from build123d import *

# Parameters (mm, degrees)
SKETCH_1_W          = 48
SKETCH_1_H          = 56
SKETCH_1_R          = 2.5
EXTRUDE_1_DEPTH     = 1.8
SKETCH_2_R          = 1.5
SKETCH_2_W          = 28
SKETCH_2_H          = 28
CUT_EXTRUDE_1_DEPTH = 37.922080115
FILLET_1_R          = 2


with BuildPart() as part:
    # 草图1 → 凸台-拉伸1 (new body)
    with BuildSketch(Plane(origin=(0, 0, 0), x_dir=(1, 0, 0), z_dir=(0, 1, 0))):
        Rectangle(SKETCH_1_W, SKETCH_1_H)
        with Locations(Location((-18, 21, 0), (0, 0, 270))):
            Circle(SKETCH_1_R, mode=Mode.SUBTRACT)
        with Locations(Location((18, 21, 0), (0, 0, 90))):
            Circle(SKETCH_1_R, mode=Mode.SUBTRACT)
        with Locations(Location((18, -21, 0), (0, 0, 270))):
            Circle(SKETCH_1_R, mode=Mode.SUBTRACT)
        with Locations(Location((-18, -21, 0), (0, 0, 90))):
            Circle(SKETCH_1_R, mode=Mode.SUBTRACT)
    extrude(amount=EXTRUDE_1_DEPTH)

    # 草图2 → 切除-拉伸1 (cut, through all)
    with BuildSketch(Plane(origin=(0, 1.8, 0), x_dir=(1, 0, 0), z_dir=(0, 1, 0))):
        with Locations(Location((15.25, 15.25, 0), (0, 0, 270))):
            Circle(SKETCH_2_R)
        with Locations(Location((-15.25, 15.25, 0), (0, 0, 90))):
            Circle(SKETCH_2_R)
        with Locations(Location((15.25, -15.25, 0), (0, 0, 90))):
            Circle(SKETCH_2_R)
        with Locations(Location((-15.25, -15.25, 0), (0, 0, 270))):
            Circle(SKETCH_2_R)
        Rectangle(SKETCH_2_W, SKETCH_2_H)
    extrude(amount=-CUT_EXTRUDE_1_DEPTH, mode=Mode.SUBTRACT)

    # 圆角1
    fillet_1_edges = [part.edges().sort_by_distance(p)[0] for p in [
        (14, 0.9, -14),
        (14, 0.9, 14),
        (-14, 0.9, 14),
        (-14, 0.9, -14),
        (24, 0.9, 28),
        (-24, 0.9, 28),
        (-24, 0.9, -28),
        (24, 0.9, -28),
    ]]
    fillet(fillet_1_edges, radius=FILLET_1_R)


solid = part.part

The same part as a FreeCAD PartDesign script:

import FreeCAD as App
import Part
import Sketcher
from FreeCAD import Vector
Q = App.Units.Quantity


def edges_at(feature, points):
    """Names of the edges that pass closest to the given points."""
    edges = feature.Shape.Edges
    near = lambda p: min(range(len(edges)), key=lambda i: edges[i].distToShape(Part.Vertex(*p))[0])
    return sorted({f"Edge{near(p) + 1}" for p in points})


def add_polygon(sketch, points):
    """Adds a closed chain of lines whose ends are joined by coincident constraints."""
    first, n = sketch.GeometryCount, len(points)
    for a, b in zip(points, points[1:] + points[:1]):
        sketch.addGeometry(Part.LineSegment(App.Vector(*a, 0), App.Vector(*b, 0)), False)
    for i in range(n):
        sketch.addConstraint(Sketcher.Constraint("Coincident", first + i, 2, first + (i + 1) % n, 1))

doc = App.newDocument("Part")
params = doc.addObject("Spreadsheet::Sheet", "Params")
for row, (alias, value) in enumerate([
    ("sketch1_diameter", "5 mm"),
    ("sketch1_width", "48 mm"),
    ("sketch1_height", "56 mm"),
    ("pad1_length", "1.8 mm"),
    ("sketch2_diameter", "3 mm"),
    ("sketch2_width", "28 mm"),
    ("fillet_radius", "2 mm"),
], start=1):
    params.set(f"A{row}", alias)
    params.set(f"B{row}", "=" + value)
    params.setAlias(f"B{row}", alias)

body = doc.addObject("PartDesign::Body", "Body")

# Sketch on XZ plane
sketch1 = body.newObject("Sketcher::SketchObject", "Sketch")
sketch1.AttachmentSupport = (doc.getObject("XZ_Plane"), [""])
sketch1.MapMode = "FlatFace"
add_polygon(sketch1, [(-24, -28), (-24, 28), (24, 28), (24, -28)])  # lines 0-3
sketch1.addGeometry(Part.Circle(Vector(-18, 21, 0), Vector(0, 0, 1), 2.5), False)  # 4
sketch1.addGeometry(Part.Circle(Vector(18, 21, 0), Vector(0, 0, 1), 2.5), False)  # 5
sketch1.addGeometry(Part.Circle(Vector(-18, -21, 0), Vector(0, 0, 1), 2.5), False)  # 6
sketch1.addGeometry(Part.Circle(Vector(18, -21, 0), Vector(0, 0, 1), 2.5), False)  # 7
sketch1.addConstraint(Sketcher.Constraint("Vertical", 0))
sketch1.addConstraint(Sketcher.Constraint("Horizontal", 1))
sketch1.addConstraint(Sketcher.Constraint("Vertical", 2))
sketch1.addConstraint(Sketcher.Constraint("Horizontal", 3))
sketch1.addConstraint(Sketcher.Constraint("Equal", 4, 5))
sketch1.addConstraint(Sketcher.Constraint("Equal", 5, 6))
sketch1.addConstraint(Sketcher.Constraint("Equal", 6, 7))
sketch1.addConstraint(Sketcher.Constraint("Symmetric", 5, 3, 6, 3, -1, 1))
sketch1.addConstraint(Sketcher.Constraint("Symmetric", 4, 3, 7, 3, -1, 1))
sketch1.addConstraint(Sketcher.Constraint("Symmetric", 0, 2, 2, 2, -1, 1))
sketch1.addConstraint(Sketcher.Constraint("Symmetric", 4, 3, 5, 3, -2))
sketch1.addConstraint(Sketcher.Constraint("Diameter", 4, Q("5 mm")))
sketch1.addConstraint(Sketcher.Constraint("DistanceX", 1, 1, 1, 2, Q("48 mm")))
sketch1.addConstraint(Sketcher.Constraint("DistanceY", 0, 1, 0, 2, Q("56 mm")))
sketch1.addConstraint(Sketcher.Constraint("DistanceX", 4, 3, -1, 1, Q("18 mm")))
sketch1.addConstraint(Sketcher.Constraint("DistanceY", -1, 1, 4, 3, Q("21 mm")))
sketch1.setExpression("Constraints[15]", "Params.sketch1_diameter")
sketch1.setExpression("Constraints[16]", "Params.sketch1_width")
sketch1.setExpression("Constraints[17]", "Params.sketch1_height")
pad1 = body.newObject("PartDesign::Pad", "Pad")
pad1.Profile = sketch1
pad1.setExpression("Length", "Params.pad1_length")
pad1.Reversed = True

# Sketch on XZ plane
sketch2 = body.newObject("Sketcher::SketchObject", "Sketch001")
sketch2.AttachmentSupport = (doc.getObject("XZ_Plane"), [""])
sketch2.MapMode = "FlatFace"
sketch2.AttachmentOffset = App.Placement(Vector(0, 0, -1.8), App.Rotation())
sketch2.addGeometry(Part.Circle(Vector(15.25, -15.25, 0), Vector(0, 0, 1), 1.5), False)  # 0
sketch2.addGeometry(Part.Circle(Vector(-15.25, -15.25, 0), Vector(0, 0, 1), 1.5), False)  # 1
sketch2.addGeometry(Part.Circle(Vector(15.25, 15.25, 0), Vector(0, 0, 1), 1.5), False)  # 2
sketch2.addGeometry(Part.Circle(Vector(-15.25, 15.25, 0), Vector(0, 0, 1), 1.5), False)  # 3
add_polygon(sketch2, [(-14, -14), (-14, 14), (14, 14), (14, -14)])  # lines 4-7
sketch2.addConstraint(Sketcher.Constraint("Vertical", 4))
sketch2.addConstraint(Sketcher.Constraint("Horizontal", 5))
sketch2.addConstraint(Sketcher.Constraint("Vertical", 6))
sketch2.addConstraint(Sketcher.Constraint("Horizontal", 7))
sketch2.addConstraint(Sketcher.Constraint("Equal", 0, 1))
sketch2.addConstraint(Sketcher.Constraint("Equal", 1, 2))
sketch2.addConstraint(Sketcher.Constraint("Equal", 2, 3))
sketch2.addConstraint(Sketcher.Constraint("Symmetric", 1, 3, 2, 3, -1, 1))
sketch2.addConstraint(Sketcher.Constraint("Symmetric", 0, 3, 3, 3, -1, 1))
sketch2.addConstraint(Sketcher.Constraint("Symmetric", 4, 2, 6, 2, -1, 1))
sketch2.addConstraint(Sketcher.Constraint("Symmetric", 0, 3, 1, 3, -2))
sketch2.addConstraint(Sketcher.Constraint("Equal", 7, 4))
sketch2.addConstraint(Sketcher.Constraint("Diameter", 0, Q("3 mm")))
sketch2.addConstraint(Sketcher.Constraint("DistanceX", 5, 1, 5, 2, Q("28 mm")))
sketch2.addConstraint(Sketcher.Constraint("DistanceX", 1, 3, 0, 3, Q("30.5 mm")))
sketch2.addConstraint(Sketcher.Constraint("DistanceY", 0, 3, 2, 3, Q("30.5 mm")))
sketch2.setExpression("Constraints[16]", "Params.sketch2_diameter")
sketch2.setExpression("Constraints[17]", "Params.sketch2_width")
pocket1 = body.newObject("PartDesign::Pocket", "Pocket")
pocket1.Profile = sketch2
pocket1.Type = "ThroughAll"
pocket1.Reversed = True
doc.recompute()

fillet = body.newObject("PartDesign::Fillet", "Fillet")
fillet.Base = (pocket1, edges_at(pocket1, [
    (14, 0.9, -14),
    (14, 0.9, 14),
    (-14, 0.9, 14),
    (-14, 0.9, -14),
    (24, 0.9, 28),
    (-24, 0.9, 28),
    (-24, 0.9, -28),
    (24, 0.9, -28),
]))
fillet.setExpression("Radius", "Params.fillet_radius")

doc.recompute()
